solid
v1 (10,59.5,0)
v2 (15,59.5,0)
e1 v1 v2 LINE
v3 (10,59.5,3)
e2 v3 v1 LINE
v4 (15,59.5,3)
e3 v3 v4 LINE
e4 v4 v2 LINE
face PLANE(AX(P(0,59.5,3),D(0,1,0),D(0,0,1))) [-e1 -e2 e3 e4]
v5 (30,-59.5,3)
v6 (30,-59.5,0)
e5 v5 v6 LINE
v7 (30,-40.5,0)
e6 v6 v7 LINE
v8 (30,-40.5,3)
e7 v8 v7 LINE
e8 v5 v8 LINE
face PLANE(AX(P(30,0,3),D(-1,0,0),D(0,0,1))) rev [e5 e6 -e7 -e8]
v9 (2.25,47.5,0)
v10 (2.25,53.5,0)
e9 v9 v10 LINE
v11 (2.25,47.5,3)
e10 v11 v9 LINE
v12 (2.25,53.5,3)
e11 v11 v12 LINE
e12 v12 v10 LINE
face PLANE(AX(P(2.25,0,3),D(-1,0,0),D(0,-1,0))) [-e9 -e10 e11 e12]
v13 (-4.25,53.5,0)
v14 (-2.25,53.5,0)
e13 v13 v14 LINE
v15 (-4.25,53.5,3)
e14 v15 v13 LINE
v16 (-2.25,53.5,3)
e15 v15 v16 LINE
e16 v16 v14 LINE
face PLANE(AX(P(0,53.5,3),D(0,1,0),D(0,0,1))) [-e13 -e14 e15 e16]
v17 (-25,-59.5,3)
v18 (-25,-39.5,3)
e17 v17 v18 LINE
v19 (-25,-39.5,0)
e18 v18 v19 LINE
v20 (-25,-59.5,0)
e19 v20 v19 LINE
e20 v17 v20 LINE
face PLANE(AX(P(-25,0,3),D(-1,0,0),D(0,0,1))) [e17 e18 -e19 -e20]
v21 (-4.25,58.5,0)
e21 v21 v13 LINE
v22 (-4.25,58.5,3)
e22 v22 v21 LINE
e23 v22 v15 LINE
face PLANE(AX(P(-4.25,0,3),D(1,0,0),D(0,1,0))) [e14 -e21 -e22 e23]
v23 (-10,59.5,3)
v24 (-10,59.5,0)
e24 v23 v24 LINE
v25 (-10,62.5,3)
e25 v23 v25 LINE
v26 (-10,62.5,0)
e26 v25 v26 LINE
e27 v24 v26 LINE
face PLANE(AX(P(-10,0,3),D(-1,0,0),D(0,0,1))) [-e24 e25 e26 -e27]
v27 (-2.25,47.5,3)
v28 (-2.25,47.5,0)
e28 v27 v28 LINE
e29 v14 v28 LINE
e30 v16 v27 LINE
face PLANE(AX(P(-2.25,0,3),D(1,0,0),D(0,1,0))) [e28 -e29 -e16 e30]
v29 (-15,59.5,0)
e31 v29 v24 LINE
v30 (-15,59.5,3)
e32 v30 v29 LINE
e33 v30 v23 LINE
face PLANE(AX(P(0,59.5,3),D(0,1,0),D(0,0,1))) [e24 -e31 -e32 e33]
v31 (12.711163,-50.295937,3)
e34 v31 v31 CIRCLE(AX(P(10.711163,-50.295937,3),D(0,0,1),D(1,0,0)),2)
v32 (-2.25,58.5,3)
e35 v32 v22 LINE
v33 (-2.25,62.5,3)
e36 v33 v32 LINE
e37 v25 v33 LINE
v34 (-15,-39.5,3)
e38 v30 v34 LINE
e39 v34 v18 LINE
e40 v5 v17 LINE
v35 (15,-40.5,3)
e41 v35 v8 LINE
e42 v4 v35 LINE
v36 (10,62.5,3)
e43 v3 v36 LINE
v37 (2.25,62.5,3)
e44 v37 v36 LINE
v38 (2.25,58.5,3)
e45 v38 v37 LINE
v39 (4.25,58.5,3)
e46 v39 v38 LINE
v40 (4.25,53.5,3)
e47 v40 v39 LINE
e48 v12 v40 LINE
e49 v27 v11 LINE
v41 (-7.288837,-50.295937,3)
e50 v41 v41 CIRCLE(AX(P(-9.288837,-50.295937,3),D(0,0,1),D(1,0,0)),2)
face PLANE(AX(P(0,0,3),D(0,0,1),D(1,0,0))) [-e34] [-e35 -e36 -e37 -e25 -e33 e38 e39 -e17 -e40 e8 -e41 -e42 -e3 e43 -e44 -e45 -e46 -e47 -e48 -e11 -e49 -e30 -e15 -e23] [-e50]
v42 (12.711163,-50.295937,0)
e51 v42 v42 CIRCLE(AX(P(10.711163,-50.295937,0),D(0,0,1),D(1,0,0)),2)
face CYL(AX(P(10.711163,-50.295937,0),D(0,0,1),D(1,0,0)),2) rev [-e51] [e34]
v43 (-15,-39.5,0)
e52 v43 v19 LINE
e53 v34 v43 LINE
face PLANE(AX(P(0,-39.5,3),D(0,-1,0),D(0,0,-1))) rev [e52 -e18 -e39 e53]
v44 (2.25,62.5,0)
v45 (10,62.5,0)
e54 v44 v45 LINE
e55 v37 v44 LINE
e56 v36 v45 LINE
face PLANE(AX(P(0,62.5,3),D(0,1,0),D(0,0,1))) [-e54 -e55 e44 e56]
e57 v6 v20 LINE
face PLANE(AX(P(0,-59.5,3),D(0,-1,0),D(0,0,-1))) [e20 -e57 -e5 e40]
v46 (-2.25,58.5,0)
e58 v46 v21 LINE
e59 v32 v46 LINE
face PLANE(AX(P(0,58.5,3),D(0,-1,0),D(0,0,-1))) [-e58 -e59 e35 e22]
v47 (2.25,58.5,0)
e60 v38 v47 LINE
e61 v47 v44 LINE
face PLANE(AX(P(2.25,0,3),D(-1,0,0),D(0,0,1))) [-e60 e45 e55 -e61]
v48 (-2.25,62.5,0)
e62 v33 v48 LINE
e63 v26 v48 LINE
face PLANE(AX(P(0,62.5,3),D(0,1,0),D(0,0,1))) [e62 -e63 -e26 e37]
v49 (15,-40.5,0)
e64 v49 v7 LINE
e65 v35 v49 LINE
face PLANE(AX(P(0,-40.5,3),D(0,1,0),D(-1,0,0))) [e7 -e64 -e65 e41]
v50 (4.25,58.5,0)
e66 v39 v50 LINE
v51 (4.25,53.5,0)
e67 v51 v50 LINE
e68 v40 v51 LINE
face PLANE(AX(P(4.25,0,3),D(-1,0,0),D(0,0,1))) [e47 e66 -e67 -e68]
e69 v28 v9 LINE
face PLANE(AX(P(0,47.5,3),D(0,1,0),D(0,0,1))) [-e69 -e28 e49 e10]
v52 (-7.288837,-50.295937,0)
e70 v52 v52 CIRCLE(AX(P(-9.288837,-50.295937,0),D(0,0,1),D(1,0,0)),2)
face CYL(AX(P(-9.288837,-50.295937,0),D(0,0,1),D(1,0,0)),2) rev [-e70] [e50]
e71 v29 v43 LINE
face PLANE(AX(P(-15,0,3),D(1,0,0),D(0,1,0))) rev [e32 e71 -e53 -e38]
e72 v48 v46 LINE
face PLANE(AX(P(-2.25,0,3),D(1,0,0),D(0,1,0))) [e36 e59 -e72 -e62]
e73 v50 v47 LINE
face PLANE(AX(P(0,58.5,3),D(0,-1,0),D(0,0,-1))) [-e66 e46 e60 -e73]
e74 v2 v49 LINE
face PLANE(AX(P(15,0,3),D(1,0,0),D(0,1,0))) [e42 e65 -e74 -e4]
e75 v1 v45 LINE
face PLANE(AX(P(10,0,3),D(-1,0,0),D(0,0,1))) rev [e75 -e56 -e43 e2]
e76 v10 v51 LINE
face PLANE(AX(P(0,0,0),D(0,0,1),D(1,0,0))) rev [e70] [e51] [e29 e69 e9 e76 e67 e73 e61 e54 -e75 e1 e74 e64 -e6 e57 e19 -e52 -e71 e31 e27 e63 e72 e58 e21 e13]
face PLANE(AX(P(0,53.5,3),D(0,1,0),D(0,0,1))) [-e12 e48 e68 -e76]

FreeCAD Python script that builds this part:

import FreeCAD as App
import Part
import Sketcher


def add_polygon(sketch, points):
    """Adds a closed chain of lines whose ends are joined by coincident constraints."""
    first, n = sketch.GeometryCount, len(points)
    for a, b in zip(points, points[1:] + points[:1]):
        sketch.addGeometry(Part.LineSegment(App.Vector(*a, 0), App.Vector(*b, 0)), False)
    for i in range(n):
        sketch.addConstraint(Sketcher.Constraint("Coincident", first + i, 2, first + (i + 1) % n, 1))

doc = App.newDocument("Part")
params = doc.addObject("Spreadsheet::Sheet", "Params")
for row, (alias, value) in enumerate([
    ("sketch1_width", "55 mm"),
    ("sketch1_width2", "15 mm"),
    ("sketch1_width3", "5 mm"),
    ("sketch1_width4", "2 mm"),
    ("sketch1_width5", "10 mm"),
    ("pad1_length", "3 mm"),
    ("sketch2_diameter", "4 mm"),
], start=1):
    params.set(f"A{row}", alias)
    params.set(f"B{row}", "=" + value)
    params.setAlias(f"B{row}", alias)

body = doc.addObject("PartDesign::Body", "Body")

# Sketch on XY plane
sketch1 = body.newObject("Sketcher::SketchObject", "Sketch")
sketch1.AttachmentSupport = (doc.getObject("XY_Plane"), [""])
sketch1.MapMode = "FlatFace"
add_polygon(sketch1, [(-25, -39.5), (-25, -59.5), (30, -59.5), (30, -40.5), (15, -40.5), (15, 59.5), (10, 59.5), (10, 62.5), (2.25, 62.5), (2.25, 58.5), (4.25, 58.5), (4.25, 53.5), (2.25, 53.5), (2.25, 47.5), (-2.25, 47.5), (-2.25, 53.5), (-4.25, 53.5), (-4.25, 58.5), (-2.25, 58.5), (-2.25, 62.5), (-10, 62.5), (-10, 59.5), (-15, 59.5), (-15, -39.5)])  # lines 0-23
sketch1.addConstraint(Sketcher.Constraint("Vertical", 0))
sketch1.addConstraint(Sketcher.Constraint("Horizontal", 1))
sketch1.addConstraint(Sketcher.Constraint("Vertical", 2))
sketch1.addConstraint(Sketcher.Constraint("Horizontal", 3))
sketch1.addConstraint(Sketcher.Constraint("Vertical", 4))
sketch1.addConstraint(Sketcher.Constraint("Horizontal", 5))
sketch1.addConstraint(Sketcher.Constraint("Vertical", 6))
sketch1.addConstraint(Sketcher.Constraint("Horizontal", 7))
sketch1.addConstraint(Sketcher.Constraint("Vertical", 8))
sketch1.addConstraint(Sketcher.Constraint("Horizontal", 9))
sketch1.addConstraint(Sketcher.Constraint("Vertical", 10))
sketch1.addConstraint(Sketcher.Constraint("Horizontal", 11))
sketch1.addConstraint(Sketcher.Constraint("Vertical", 12))
sketch1.addConstraint(Sketcher.Constraint("Horizontal", 13))
sketch1.addConstraint(Sketcher.Constraint("Vertical", 14))
sketch1.addConstraint(Sketcher.Constraint("Horizontal", 15))
sketch1.addConstraint(Sketcher.Constraint("Vertical", 16))
sketch1.addConstraint(Sketcher.Constraint("Horizontal", 17))
sketch1.addConstraint(Sketcher.Constraint("Vertical", 18))
sketch1.addConstraint(Sketcher.Constraint("Horizontal", 19))
sketch1.addConstraint(Sketcher.Constraint("Vertical", 20))
sketch1.addConstraint(Sketcher.Constraint("Horizontal", 21))
sketch1.addConstraint(Sketcher.Constraint("Vertical", 22))
sketch1.addConstraint(Sketcher.Constraint("Horizontal", 23))
sketch1.addConstraint(Sketcher.Constraint("Symmetric", 11, 2, 14, 2, -2))
sketch1.addConstraint(Sketcher.Constraint("Symmetric", 9, 2, 16, 2, -2))
sketch1.addConstraint(Sketcher.Constraint("Symmetric", 7, 2, 18, 2, -2))
sketch1.addConstraint(Sketcher.Constraint("Symmetric", 5, 2, 20, 2, -2))
sketch1.addConstraint(Sketcher.Constraint("Vertical", 8, 2, 11, 2))
sketch1.addConstraint(Sketcher.Constraint("Equal", 5, 21))
sketch1.addConstraint(Sketcher.Constraint("Equal", 21, 10))
sketch1.addConstraint(Sketcher.Constraint("DistanceX", 1, 1, 1, 2, 55.0))
sketch1.addConstraint(Sketcher.Constraint("DistanceX", 3, 2, 3, 1, 15.0))
sketch1.addConstraint(Sketcher.Constraint("DistanceX", 5, 2, 5, 1, 5.0))
sketch1.addConstraint(Sketcher.Constraint("DistanceX", 9, 1, 9, 2, 2.0))
sketch1.addConstraint(Sketcher.Constraint("DistanceX", 23, 2, 23, 1, 10.0))
sketch1.addConstraint(Sketcher.Constraint("DistanceY", 0, 2, 0, 1, 20.0))
sketch1.addConstraint(Sketcher.Constraint("DistanceY", 2, 1, 2, 2, 19.0))
sketch1.addConstraint(Sketcher.Constraint("DistanceY", 4, 1, 4, 2, 100.0))
sketch1.addConstraint(Sketcher.Constraint("DistanceY", 6, 1, 6, 2, 3.0))
sketch1.addConstraint(Sketcher.Constraint("DistanceY", 8, 2, 8, 1, 4.0))
sketch1.addConstraint(Sketcher.Constraint("DistanceY", 12, 2, 12, 1, 6.0))
sketch1.addConstraint(Sketcher.Constraint("DistanceX", 13, 2, 13, 1, 4.5))
sketch1.addConstraint(Sketcher.Constraint("DistanceY", 0, 2, -1, 1, 59.5))
sketch1.setExpression("Constraints[55]", "Params.sketch1_width")
sketch1.setExpression("Constraints[56]", "Params.sketch1_width2")
sketch1.setExpression("Constraints[57]", "Params.sketch1_width3")
sketch1.setExpression("Constraints[58]", "Params.sketch1_width4")
sketch1.setExpression("Constraints[59]", "Params.sketch1_width5")
pad1 = body.newObject("PartDesign::Pad", "Pad")
pad1.Profile = sketch1
pad1.setExpression("Length", "Params.pad1_length")

# Sketch on XY plane
sketch2 = body.newObject("Sketcher::SketchObject", "Sketch001")
sketch2.AttachmentSupport = (doc.getObject("XY_Plane"), [""])
sketch2.MapMode = "FlatFace"
sketch2.AttachmentOffset = App.Placement(App.Vector(0, 0, 3), App.Rotation())
sketch2.addGeometry(Part.Circle(App.Vector(-9.288837, -50.295937, 0), App.Vector(0, 0, 1), 2), False)
sketch2.addGeometry(Part.Circle(App.Vector(10.711163, -50.295937, 0), App.Vector(0, 0, 1), 2), False)
sketch2.addConstraint(Sketcher.Constraint("Equal", 0, 1))
sketch2.addConstraint(Sketcher.Constraint("Horizontal", 0, 3, 1, 3))
sketch2.addConstraint(Sketcher.Constraint("Diameter", 0, 4.0))
sketch2.addConstraint(Sketcher.Constraint("DistanceX", 0, 3, 1, 3, 20.0))
sketch2.addConstraint(Sketcher.Constraint("DistanceX", 0, 3, -1, 1, 9.288837))
sketch2.addConstraint(Sketcher.Constraint("DistanceY", 0, 3, -1, 1, 50.295937))
sketch2.setExpression("Constraints[2]", "Params.sketch2_diameter")
pocket1 = body.newObject("PartDesign::Pocket", "Pocket")
pocket1.Profile = sketch2
pocket1.Type = "ThroughAll"
pocket1.Midplane = True

doc.recompute()
